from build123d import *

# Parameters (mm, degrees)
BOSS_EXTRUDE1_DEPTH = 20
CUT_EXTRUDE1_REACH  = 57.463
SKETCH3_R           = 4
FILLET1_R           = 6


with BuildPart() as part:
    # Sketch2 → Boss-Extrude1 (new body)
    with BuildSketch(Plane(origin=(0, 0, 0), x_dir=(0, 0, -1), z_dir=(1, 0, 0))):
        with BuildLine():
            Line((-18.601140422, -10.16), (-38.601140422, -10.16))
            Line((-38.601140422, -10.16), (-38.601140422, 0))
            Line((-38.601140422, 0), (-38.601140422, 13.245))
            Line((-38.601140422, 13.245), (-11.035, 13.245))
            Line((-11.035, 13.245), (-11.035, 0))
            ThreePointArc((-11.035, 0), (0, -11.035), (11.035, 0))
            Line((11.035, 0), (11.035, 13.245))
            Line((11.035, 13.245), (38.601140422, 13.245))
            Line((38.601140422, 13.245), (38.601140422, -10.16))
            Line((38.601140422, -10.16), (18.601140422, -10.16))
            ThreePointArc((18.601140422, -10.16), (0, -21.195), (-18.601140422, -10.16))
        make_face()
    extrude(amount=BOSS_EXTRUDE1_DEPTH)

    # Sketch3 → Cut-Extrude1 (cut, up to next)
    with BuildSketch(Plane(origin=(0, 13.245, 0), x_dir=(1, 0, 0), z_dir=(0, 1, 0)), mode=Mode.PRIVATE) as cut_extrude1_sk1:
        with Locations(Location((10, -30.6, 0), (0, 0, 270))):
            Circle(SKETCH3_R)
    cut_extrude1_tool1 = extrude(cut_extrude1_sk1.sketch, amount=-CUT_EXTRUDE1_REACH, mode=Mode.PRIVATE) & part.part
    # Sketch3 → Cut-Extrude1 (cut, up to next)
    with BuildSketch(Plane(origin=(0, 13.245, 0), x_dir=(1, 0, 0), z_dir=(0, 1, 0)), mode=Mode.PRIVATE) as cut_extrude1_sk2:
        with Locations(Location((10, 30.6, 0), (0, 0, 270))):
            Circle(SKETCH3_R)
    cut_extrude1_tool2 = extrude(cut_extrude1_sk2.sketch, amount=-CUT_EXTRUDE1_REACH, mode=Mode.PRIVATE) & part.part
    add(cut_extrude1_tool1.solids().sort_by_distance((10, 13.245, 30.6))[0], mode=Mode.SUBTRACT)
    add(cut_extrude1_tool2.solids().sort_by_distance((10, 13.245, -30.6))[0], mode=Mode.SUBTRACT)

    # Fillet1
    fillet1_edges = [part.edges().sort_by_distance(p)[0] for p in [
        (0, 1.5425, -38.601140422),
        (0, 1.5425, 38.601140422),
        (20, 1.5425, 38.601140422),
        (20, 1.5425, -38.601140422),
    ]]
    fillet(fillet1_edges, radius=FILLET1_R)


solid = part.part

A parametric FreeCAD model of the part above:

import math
import FreeCAD as App
import Part
import Sketcher

V = App.Vector
Q = App.Units.Quantity


def edges_at(feature, points):
    """Names of the edges that pass closest to the given points."""
    edges = feature.Shape.Edges
    near = lambda p: min(range(len(edges)), key=lambda i: edges[i].distToShape(Part.Vertex(*p))[0])
    return sorted({f"Edge{near(p) + 1}" for p in points})

doc = App.newDocument("Part")
body = doc.addObject("PartDesign::Body", "Body")

# Sketch on YZ plane
sketch1 = body.newObject("Sketcher::SketchObject", "Sketch")
sketch1.AttachmentSupport = (doc.getObject("YZ_Plane"), [""])
sketch1.MapMode = "FlatFace"
sketch1.addGeometry([
    Part.LineSegment(V(-10, 39, 0), V(-10, 19, 0)),  # 0
    Part.ArcOfCircle(Part.Circle(V(0, 0, 0), V(0, 0, 1), 21), math.radians(119), math.radians(241)),  # 1
    Part.LineSegment(V(-10, -19, 0), V(-10, -39, 0)),  # 2
    Part.LineSegment(V(-10, -39, 0), V(13, -39, 0)),  # 3
    Part.LineSegment(V(13, -39, 0), V(13, -11, 0)),  # 4
    Part.LineSegment(V(13, -11, 0), V(0, -11, 0)),  # 5
    Part.ArcOfCircle(Part.Circle(V(0, 0, 0), V(0, 0, 1), 11), math.radians(90), math.radians(270)),  # 6
    Part.LineSegment(V(0, 11, 0), V(13, 11, 0)),  # 7
    Part.LineSegment(V(13, 11, 0), V(13, 39, 0)),  # 8
    Part.LineSegment(V(13, 39, 0), V(-10, 39, 0)),  # 9
], False)
sketch1.addConstraint([
    Sketcher.Constraint("Coincident", 0, 2, 1, 1),
    Sketcher.Constraint("Coincident", 1, 2, 2, 1),
    Sketcher.Constraint("Coincident", 2, 2, 3, 1),
    Sketcher.Constraint("Coincident", 3, 2, 4, 1),
    Sketcher.Constraint("Coincident", 4, 2, 5, 1),
    Sketcher.Constraint("Tangent", 5, 2, 6, 2),
    Sketcher.Constraint("Tangent", 6, 1, 7, 1),
    Sketcher.Constraint("Coincident", 7, 2, 8, 1),
    Sketcher.Constraint("Coincident", 8, 2, 9, 1),
    Sketcher.Constraint("Coincident", 9, 2, 0, 1),
    Sketcher.Constraint("Vertical", 0),
    Sketcher.Constraint("Vertical", 2),
    Sketcher.Constraint("Horizontal", 3),
    Sketcher.Constraint("Vertical", 4),
    Sketcher.Constraint("Horizontal", 5),
    Sketcher.Constraint("Horizontal", 7),
    Sketcher.Constraint("Vertical", 8),
    Sketcher.Constraint("Horizontal", 9),
    Sketcher.Constraint("Coincident", 1, 3, -1, 1),
    Sketcher.Constraint("Coincident", 6, 3, -1, 1),
    Sketcher.Constraint("Symmetric", 3, 2, 8, 2, -1),
    Sketcher.Constraint("Vertical", 0, 2, 1, 2),
    Sketcher.Constraint("DistanceY", 0, 2, 0, 1, Q("20 mm")),
    Sketcher.Constraint("Radius", 1, Q("21.195 mm")),
    Sketcher.Constraint("Radius", 6, Q("11.035 mm")),
    Sketcher.Constraint("DistanceX", 3, 1, 3, 2, Q("23.405 mm")),
    Sketcher.Constraint("DistanceX", 5, 2, 5, 1, Q("13.245 mm")),
])
pad1 = body.newObject("PartDesign::Pad", "Pad")
pad1.Profile = sketch1
pad1.Length = 20

# Sketch on XZ plane
sketch2 = body.newObject("Sketcher::SketchObject", "Sketch001")
sketch2.AttachmentSupport = (doc.getObject("XZ_Plane"), [""])
sketch2.MapMode = "FlatFace"
sketch2.AttachmentOffset = App.Placement(V(0, 0, -13.245), App.Rotation())
sketch2.addGeometry(Part.Circle(V(10, 30.6, 0), V(0, 0, 1), 4), False)
sketch2.addConstraint([
    Sketcher.Constraint("Diameter", 0, Q("8 mm")),
    Sketcher.Constraint("DistanceX", -1, 1, 0, 3, Q("10 mm")),
    Sketcher.Constraint("DistanceY", -1, 1, 0, 3, Q("30.6 mm")),
])
pocket1 = body.newObject("PartDesign::Pocket", "Pocket")
pocket1.Profile = sketch2
pocket1.Type = "UpToFirst"
pocket1.Reversed = True

# Sketch on XZ plane
sketch3 = body.newObject("Sketcher::SketchObject", "Sketch002")
sketch3.AttachmentSupport = (doc.getObject("XZ_Plane"), [""])
sketch3.MapMode = "FlatFace"
sketch3.AttachmentOffset = App.Placement(V(0, 0, -13.245), App.Rotation())
sketch3.addGeometry(Part.Circle(V(10, -30.6, 0), V(0, 0, 1), 4), False)
sketch3.addConstraint([
    Sketcher.Constraint("Diameter", 0, Q("8 mm")),
    Sketcher.Constraint("DistanceX", -1, 1, 0, 3, Q("10 mm")),
    Sketcher.Constraint("DistanceY", 0, 3, -1, 1, Q("30.6 mm")),
])
pocket2 = body.newObject("PartDesign::Pocket", "Pocket001")
pocket2.Profile = sketch3
pocket2.Type = "UpToFirst"
pocket2.Reversed = True
doc.recompute()

fillet = body.newObject("PartDesign::Fillet", "Fillet")
fillet.Base = (pocket2, edges_at(pocket2, [
    (0, 1.542, -38.601),
    (0, 1.542, 38.601),
    (20, 1.542, 38.601),
    (20, 1.542, -38.601),
]))
fillet.Radius = 6

doc.recompute()
